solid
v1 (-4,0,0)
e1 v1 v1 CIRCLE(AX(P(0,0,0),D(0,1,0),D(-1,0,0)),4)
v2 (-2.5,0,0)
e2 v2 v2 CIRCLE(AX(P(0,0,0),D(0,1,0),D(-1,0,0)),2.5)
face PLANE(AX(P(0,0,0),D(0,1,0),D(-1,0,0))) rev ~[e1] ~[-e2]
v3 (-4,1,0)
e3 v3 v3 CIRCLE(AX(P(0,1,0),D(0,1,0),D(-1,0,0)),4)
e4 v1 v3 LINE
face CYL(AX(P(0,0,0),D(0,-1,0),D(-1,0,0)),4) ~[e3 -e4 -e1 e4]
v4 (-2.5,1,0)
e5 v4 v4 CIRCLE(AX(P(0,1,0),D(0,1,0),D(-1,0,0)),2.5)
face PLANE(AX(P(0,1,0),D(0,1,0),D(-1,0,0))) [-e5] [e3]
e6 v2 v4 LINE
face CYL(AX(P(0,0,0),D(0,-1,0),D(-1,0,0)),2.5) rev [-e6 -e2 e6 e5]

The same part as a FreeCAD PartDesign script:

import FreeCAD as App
import Part
import Sketcher

V = App.Vector

doc = App.newDocument("Part")
body = doc.addObject("PartDesign::Body", "Body")

sketch1 = body.newObject("Sketcher::SketchObject", "Sketch")
sketch1.AttachmentSupport = (doc.getObject("XZ_Plane"), [""])
sketch1.MapMode = "FlatFace"
sketch1.addGeometry(Part.Circle(V(0, 0, 0), V(0, 0, 1), 4), False)
sketch1.addGeometry(Part.Circle(V(0, 0, 0), V(0, 0, 1), 2.5), False)
sketch1.addConstraint(Sketcher.Constraint("Coincident", 0, 3, -1, 1))
sketch1.addConstraint(Sketcher.Constraint("Coincident", 1, 3, -1, 1))
sketch1.addConstraint(Sketcher.Constraint("Diameter", 0, 8.0))
sketch1.addConstraint(Sketcher.Constraint("Diameter", 1, 5.0))
pad1 = body.newObject("PartDesign::Pad", "Pad")
pad1.Profile = sketch1
pad1.Length = 1
pad1.Reversed = True

doc.recompute()
